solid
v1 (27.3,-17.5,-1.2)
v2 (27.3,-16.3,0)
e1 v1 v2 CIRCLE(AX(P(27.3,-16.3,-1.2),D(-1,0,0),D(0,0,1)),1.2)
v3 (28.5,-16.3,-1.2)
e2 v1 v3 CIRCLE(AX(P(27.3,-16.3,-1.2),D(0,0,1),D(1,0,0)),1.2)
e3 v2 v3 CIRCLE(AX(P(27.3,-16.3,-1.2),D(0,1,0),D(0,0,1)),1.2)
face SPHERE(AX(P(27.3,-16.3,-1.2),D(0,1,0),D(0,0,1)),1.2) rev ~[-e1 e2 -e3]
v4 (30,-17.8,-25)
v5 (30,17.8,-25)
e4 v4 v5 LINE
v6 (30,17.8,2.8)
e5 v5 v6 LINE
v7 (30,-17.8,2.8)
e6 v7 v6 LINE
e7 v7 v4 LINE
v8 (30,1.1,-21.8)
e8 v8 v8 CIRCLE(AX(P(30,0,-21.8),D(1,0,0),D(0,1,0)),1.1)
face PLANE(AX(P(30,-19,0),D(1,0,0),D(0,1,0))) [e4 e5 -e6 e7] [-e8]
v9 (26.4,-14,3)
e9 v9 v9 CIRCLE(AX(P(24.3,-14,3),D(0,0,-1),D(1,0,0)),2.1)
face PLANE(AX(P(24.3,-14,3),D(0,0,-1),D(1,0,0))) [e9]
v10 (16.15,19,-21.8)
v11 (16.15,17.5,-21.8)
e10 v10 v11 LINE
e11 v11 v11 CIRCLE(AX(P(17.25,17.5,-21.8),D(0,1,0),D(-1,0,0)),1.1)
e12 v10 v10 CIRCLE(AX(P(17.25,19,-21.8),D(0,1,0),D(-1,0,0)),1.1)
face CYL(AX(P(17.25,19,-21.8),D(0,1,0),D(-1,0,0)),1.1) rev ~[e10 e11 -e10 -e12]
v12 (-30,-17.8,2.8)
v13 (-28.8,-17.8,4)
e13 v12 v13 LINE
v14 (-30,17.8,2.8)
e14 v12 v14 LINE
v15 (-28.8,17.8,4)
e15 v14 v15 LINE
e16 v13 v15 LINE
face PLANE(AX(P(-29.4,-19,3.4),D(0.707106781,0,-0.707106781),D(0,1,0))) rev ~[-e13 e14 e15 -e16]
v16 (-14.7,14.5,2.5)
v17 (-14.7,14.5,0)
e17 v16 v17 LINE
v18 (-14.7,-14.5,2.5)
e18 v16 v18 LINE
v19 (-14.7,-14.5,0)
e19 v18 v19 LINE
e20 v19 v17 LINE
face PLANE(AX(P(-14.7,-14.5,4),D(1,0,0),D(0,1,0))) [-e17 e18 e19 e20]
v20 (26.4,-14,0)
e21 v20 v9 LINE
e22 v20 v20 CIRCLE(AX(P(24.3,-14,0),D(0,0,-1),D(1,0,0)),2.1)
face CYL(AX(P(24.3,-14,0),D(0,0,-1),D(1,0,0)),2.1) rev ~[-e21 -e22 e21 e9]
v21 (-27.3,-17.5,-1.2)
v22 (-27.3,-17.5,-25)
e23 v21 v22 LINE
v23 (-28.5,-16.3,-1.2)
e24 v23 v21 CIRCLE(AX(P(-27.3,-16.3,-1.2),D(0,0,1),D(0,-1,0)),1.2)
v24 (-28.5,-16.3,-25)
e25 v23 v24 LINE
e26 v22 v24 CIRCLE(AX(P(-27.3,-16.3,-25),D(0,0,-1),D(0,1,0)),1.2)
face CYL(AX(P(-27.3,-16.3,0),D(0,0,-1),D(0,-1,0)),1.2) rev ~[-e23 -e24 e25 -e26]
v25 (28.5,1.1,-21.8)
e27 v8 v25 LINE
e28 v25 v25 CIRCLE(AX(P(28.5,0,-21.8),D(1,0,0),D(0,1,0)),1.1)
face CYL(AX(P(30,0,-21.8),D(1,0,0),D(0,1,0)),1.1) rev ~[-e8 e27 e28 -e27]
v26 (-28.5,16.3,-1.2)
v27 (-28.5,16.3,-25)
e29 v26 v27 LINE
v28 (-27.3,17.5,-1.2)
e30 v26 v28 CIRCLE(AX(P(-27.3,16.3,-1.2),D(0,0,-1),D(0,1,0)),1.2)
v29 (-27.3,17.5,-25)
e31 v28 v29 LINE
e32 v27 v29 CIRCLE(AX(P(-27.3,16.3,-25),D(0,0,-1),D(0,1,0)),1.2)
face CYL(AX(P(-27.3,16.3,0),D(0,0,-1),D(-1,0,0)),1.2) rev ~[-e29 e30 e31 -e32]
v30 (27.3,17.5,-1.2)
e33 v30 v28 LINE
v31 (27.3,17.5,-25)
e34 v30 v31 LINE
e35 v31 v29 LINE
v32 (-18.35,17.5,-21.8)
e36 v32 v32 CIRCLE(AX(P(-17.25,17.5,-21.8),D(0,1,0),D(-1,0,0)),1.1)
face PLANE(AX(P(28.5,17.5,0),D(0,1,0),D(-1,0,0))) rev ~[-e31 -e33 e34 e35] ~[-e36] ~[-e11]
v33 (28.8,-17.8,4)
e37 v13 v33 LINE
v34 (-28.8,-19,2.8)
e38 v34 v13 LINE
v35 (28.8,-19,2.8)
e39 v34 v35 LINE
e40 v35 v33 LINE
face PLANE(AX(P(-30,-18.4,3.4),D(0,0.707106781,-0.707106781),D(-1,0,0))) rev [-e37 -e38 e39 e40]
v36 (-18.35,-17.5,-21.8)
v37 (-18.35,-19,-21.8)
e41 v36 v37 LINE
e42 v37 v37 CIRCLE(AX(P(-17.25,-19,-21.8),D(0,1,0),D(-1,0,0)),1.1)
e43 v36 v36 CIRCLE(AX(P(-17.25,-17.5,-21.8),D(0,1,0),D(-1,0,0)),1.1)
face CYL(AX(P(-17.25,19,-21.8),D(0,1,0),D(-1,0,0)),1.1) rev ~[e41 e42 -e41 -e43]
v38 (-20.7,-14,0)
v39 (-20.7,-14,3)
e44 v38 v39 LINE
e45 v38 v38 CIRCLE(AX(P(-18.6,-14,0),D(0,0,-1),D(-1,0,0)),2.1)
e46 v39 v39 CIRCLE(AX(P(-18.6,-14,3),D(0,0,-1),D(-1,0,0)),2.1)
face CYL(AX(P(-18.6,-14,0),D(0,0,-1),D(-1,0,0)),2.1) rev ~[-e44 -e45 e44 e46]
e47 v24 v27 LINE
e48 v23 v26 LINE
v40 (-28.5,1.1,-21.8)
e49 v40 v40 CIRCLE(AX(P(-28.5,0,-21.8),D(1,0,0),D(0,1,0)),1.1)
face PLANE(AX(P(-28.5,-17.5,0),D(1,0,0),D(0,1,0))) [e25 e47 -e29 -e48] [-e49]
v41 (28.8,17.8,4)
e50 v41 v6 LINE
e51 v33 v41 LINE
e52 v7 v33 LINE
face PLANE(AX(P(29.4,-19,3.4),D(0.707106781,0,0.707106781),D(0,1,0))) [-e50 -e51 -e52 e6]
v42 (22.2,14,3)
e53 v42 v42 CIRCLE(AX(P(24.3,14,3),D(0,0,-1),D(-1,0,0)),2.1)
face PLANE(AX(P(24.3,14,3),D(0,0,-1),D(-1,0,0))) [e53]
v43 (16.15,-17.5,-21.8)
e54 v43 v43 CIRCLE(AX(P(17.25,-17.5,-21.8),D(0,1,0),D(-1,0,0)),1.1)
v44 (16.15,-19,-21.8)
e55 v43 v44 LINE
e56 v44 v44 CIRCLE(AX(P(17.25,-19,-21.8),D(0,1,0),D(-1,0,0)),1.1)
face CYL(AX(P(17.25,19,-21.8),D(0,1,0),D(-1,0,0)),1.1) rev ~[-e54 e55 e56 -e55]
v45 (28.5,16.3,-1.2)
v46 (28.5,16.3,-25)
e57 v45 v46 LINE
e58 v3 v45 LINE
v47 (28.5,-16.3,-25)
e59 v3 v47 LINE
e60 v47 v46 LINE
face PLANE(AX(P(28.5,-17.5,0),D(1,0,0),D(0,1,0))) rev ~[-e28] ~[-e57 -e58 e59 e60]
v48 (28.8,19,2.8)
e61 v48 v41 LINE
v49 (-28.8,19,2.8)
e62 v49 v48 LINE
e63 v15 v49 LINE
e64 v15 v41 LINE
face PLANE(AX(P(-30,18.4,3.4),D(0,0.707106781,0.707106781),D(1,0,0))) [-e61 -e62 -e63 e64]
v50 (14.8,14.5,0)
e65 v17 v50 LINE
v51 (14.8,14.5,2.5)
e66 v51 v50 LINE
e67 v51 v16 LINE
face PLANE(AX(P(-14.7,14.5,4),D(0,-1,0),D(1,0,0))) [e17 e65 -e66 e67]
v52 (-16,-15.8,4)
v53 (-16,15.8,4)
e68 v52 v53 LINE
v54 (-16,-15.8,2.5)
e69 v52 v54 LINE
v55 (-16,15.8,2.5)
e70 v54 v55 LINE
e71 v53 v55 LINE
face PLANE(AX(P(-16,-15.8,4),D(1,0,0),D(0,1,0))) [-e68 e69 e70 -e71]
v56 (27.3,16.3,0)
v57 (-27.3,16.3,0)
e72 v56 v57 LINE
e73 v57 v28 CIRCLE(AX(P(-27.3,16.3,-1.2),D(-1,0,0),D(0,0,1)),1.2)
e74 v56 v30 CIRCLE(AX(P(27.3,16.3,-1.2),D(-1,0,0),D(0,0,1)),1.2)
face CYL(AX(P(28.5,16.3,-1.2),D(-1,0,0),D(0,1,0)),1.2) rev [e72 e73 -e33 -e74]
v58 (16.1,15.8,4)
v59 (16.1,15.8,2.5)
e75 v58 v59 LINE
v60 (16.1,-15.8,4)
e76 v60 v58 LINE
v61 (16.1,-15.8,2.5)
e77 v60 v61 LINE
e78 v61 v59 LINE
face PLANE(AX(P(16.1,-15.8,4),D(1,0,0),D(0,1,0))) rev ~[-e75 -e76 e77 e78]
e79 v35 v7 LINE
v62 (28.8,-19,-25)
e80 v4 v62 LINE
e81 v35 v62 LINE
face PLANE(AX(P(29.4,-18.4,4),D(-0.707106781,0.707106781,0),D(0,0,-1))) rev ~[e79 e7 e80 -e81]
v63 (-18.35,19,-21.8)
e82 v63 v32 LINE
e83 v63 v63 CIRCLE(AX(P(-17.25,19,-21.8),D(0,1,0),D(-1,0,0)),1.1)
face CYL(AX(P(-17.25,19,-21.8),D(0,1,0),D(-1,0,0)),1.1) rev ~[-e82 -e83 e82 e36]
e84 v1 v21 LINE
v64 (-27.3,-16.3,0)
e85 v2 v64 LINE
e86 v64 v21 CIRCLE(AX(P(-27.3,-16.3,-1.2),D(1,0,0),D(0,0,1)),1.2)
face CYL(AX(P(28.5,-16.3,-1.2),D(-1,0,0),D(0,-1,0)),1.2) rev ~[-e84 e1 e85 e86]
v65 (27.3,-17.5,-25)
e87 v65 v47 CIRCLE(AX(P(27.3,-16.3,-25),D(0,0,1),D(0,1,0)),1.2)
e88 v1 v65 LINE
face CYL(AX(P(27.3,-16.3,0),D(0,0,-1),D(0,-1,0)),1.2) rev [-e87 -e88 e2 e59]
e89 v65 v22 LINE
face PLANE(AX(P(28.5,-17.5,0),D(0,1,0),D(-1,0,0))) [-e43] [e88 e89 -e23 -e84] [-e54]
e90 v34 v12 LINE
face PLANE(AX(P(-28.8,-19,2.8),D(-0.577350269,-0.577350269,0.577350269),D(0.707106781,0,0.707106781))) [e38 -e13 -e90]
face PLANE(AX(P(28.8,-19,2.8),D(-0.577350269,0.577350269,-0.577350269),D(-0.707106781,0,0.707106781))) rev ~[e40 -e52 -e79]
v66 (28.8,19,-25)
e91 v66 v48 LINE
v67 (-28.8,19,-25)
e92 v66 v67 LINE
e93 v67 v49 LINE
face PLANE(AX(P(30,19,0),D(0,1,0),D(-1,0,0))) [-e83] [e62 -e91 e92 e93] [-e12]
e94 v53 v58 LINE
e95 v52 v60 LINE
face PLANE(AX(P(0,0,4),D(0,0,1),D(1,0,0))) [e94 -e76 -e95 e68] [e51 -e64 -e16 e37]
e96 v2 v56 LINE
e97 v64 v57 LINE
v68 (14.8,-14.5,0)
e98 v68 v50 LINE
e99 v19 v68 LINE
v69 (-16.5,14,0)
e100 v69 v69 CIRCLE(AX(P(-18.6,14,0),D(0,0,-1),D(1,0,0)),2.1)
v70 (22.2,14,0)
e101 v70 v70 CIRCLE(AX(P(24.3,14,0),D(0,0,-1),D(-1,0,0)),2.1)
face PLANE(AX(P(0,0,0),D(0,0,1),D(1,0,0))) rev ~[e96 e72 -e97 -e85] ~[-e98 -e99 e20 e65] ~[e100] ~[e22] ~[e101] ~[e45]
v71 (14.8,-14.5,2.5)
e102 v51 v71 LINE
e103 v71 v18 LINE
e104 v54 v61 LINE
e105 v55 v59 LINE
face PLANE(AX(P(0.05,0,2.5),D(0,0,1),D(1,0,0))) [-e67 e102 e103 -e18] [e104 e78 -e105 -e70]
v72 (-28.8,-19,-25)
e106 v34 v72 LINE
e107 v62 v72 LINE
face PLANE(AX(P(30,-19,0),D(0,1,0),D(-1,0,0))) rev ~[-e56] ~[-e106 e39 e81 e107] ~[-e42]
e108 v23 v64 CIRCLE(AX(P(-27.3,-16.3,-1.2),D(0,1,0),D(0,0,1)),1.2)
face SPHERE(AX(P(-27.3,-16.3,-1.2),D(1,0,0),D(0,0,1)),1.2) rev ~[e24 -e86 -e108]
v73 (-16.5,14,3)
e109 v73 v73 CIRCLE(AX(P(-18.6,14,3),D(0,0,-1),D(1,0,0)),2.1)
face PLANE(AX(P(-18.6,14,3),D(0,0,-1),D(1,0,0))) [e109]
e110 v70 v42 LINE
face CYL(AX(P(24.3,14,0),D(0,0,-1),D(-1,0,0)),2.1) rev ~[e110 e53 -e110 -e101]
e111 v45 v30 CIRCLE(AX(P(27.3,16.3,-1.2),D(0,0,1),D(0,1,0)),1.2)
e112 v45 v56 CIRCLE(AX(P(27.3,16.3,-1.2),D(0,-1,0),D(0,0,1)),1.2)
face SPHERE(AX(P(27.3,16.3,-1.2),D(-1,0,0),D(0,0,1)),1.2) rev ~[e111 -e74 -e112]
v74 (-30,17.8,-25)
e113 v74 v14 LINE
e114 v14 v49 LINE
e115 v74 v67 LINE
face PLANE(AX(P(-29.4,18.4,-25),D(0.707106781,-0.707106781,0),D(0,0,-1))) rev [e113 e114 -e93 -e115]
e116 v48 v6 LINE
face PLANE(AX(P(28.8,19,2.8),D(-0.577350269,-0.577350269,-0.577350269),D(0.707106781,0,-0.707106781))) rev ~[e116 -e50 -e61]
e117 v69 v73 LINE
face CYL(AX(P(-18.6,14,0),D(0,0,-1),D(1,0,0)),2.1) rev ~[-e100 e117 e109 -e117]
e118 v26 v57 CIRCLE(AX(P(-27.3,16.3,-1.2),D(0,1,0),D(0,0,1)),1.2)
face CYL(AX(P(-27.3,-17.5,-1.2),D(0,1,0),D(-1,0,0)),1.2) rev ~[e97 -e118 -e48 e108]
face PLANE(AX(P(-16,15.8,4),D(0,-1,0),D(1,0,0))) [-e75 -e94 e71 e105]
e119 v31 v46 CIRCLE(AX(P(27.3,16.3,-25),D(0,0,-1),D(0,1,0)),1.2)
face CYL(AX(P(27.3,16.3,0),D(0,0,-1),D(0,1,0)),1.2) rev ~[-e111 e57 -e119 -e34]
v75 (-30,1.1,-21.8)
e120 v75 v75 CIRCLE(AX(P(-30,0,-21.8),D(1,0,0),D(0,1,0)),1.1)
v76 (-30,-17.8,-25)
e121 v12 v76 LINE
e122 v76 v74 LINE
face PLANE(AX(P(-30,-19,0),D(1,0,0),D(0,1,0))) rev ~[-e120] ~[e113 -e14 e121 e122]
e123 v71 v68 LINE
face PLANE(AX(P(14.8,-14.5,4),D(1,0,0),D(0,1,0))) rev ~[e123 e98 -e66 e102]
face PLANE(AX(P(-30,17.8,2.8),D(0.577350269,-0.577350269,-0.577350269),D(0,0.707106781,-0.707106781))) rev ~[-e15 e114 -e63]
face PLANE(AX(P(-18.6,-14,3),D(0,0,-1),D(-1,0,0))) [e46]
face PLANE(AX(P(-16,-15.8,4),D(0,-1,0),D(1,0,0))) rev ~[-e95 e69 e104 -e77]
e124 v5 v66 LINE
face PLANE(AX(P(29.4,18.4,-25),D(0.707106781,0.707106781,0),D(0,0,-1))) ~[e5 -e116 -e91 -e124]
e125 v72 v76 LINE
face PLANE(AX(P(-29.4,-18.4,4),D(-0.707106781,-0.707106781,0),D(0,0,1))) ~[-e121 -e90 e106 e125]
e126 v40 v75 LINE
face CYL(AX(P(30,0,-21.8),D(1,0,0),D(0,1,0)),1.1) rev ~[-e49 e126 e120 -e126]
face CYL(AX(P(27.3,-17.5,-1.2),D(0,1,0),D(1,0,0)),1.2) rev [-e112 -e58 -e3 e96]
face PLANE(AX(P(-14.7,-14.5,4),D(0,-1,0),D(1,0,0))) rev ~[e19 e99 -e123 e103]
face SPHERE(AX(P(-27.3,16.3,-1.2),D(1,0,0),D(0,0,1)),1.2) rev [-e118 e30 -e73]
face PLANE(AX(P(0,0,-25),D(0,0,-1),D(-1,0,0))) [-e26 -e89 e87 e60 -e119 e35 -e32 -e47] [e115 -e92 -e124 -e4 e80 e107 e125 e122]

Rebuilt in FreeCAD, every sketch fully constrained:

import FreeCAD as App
import Part
import Sketcher

V = App.Vector
Q = App.Units.Quantity


def edges_at(feature, points):
    """Names of the edges that pass closest to the given points."""
    edges = feature.Shape.Edges
    near = lambda p: min(range(len(edges)), key=lambda i: edges[i].distToShape(Part.Vertex(*p))[0])
    return sorted({f"Edge{near(p) + 1}" for p in points})


def add_polygon(sketch, points):
    """Adds a closed chain of lines whose ends are joined by coincident constraints."""
    first, n = sketch.GeometryCount, len(points)
    for a, b in zip(points, points[1:] + points[:1]):
        sketch.addGeometry(Part.LineSegment(App.Vector(*a, 0), App.Vector(*b, 0)), False)
    for i in range(n):
        sketch.addConstraint(Sketcher.Constraint("Coincident", first + i, 2, first + (i + 1) % n, 1))

doc = App.newDocument("Part")
body = doc.addObject("PartDesign::Body", "Body")

# Sketch on XY plane
sketch1 = doc.addObject("Sketcher::SketchObject", "Sketch")
body.addObject(sketch1)
sketch1.AttachmentSupport = (doc.XY_Plane, [""])
sketch1.MapMode = "FlatFace"
add_polygon(sketch1, [(-30, 19), (-30, -19), (30, -19), (30, 19)])  # lines 0-3
sketch1.addConstraint(Sketcher.Constraint("Vertical", 0))
sketch1.addConstraint(Sketcher.Constraint("Horizontal", 1))
sketch1.addConstraint(Sketcher.Constraint("Vertical", 2))
sketch1.addConstraint(Sketcher.Constraint("Horizontal", 3))
sketch1.addConstraint(Sketcher.Constraint("Symmetric", 0, 2, 2, 2, -1, 1))
sketch1.addConstraint(Sketcher.Constraint("DistanceX", 1, 1, 1, 2, Q("60 mm")))
sketch1.addConstraint(Sketcher.Constraint("DistanceY", 0, 2, 0, 1, Q("38 mm")))
pad1 = doc.addObject("PartDesign::Pad", "Pad")
body.addObject(pad1)
pad1.Profile = sketch1
pad1.Length = 4

# Sketch on XY plane
sketch2 = doc.addObject("Sketcher::SketchObject", "Sketch001")
body.addObject(sketch2)
sketch2.AttachmentSupport = (doc.XY_Plane, [""])
sketch2.MapMode = "FlatFace"
sketch2.AttachmentOffset = App.Placement(V(0, 0, 4), App.Rotation())
add_polygon(sketch2, [(-15, 14), (-15, -14), (15, -14), (15, 14)])  # lines 0-3
sketch2.addConstraint(Sketcher.Constraint("Vertical", 0))
sketch2.addConstraint(Sketcher.Constraint("Horizontal", 1))
sketch2.addConstraint(Sketcher.Constraint("Vertical", 2))
sketch2.addConstraint(Sketcher.Constraint("Horizontal", 3))
sketch2.addConstraint(Sketcher.Constraint("DistanceY", 0, 2, 0, 1, Q("29 mm")))
sketch2.addConstraint(Sketcher.Constraint("DistanceX", 1, 1, 1, 2, Q("29.5 mm")))
sketch2.addConstraint(Sketcher.Constraint("DistanceX", 0, 2, -1, 1, Q("14.7 mm")))
sketch2.addConstraint(Sketcher.Constraint("DistanceY", 0, 2, -1, 1, Q("14.5 mm")))
pocket1 = doc.addObject("PartDesign::Pocket", "Pocket")
body.addObject(pocket1)
pocket1.Profile = sketch2
pocket1.Length = 4

# Sketch on XY plane
sketch3 = doc.addObject("Sketcher::SketchObject", "Sketch002")
body.addObject(sketch3)
sketch3.AttachmentSupport = (doc.XY_Plane, [""])
sketch3.MapMode = "FlatFace"
sketch3.addGeometry(Part.Circle(V(24.3, 14, 0), V(0, 0, 1), 2.1), False)
sketch3.addGeometry(Part.Circle(V(24.3, -14, 0), V(0, 0, 1), 2.1), False)
sketch3.addGeometry(Part.Circle(V(-18.6, -14, 0), V(0, 0, 1), 2.1), False)
sketch3.addGeometry(Part.Circle(V(-18.6, 14, 0), V(0, 0, 1), 2.1), False)
sketch3.addConstraint(Sketcher.Constraint("Equal", 0, 1))
sketch3.addConstraint(Sketcher.Constraint("Equal", 1, 2))
sketch3.addConstraint(Sketcher.Constraint("Equal", 2, 3))
sketch3.addConstraint(Sketcher.Constraint("Symmetric", 0, 3, 1, 3, -1))
sketch3.addConstraint(Sketcher.Constraint("Symmetric", 2, 3, 3, 3, -1))
sketch3.addConstraint(Sketcher.Constraint("Horizontal", 1, 3, 2, 3))
sketch3.addConstraint(Sketcher.Constraint("Diameter", 0, Q("4.2 mm")))
sketch3.addConstraint(Sketcher.Constraint("DistanceY", -1, 1, 0, 3, Q("14 mm")))
sketch3.addConstraint(Sketcher.Constraint("DistanceX", -1, 1, 0, 3, Q("24.3 mm")))
sketch3.addConstraint(Sketcher.Constraint("DistanceX", 2, 3, -1, 1, Q("18.6 mm")))
pocket2 = doc.addObject("PartDesign::Pocket", "Pocket001")
body.addObject(pocket2)
pocket2.Profile = sketch3
pocket2.Length = 3
pocket2.Reversed = True

# Sketch on XY plane
sketch4 = doc.addObject("Sketcher::SketchObject", "Sketch003")
body.addObject(sketch4)
sketch4.AttachmentSupport = (doc.XY_Plane, [""])
sketch4.MapMode = "FlatFace"
add_polygon(sketch4, [(30, 19), (30, -19), (-30, -19), (-30, 19)])  # lines 0-3
add_polygon(sketch4, [(-28, -18), (28, -18), (28, 18), (-28, 18)])  # lines 4-7
sketch4.addConstraint(Sketcher.Constraint("Vertical", 0))
sketch4.addConstraint(Sketcher.Constraint("Horizontal", 1))
sketch4.addConstraint(Sketcher.Constraint("Vertical", 2))
sketch4.addConstraint(Sketcher.Constraint("Horizontal", 3))
sketch4.addConstraint(Sketcher.Constraint("Horizontal", 4))
sketch4.addConstraint(Sketcher.Constraint("Vertical", 5))
sketch4.addConstraint(Sketcher.Constraint("Horizontal", 6))
sketch4.addConstraint(Sketcher.Constraint("Vertical", 7))
sketch4.addConstraint(Sketcher.Constraint("Symmetric", 0, 2, 2, 2, -1, 1))
sketch4.addConstraint(Sketcher.Constraint("Symmetric", 4, 2, 6, 2, -1, 1))
sketch4.addConstraint(Sketcher.Constraint("DistanceX", 1, 2, 1, 1, Q("60 mm")))
sketch4.addConstraint(Sketcher.Constraint("DistanceX", 4, 1, 4, 2, Q("57 mm")))
sketch4.addConstraint(Sketcher.Constraint("DistanceY", 0, 2, 0, 1, Q("38 mm")))
sketch4.addConstraint(Sketcher.Constraint("DistanceY", 5, 1, 5, 2, Q("35 mm")))
pad2 = doc.addObject("PartDesign::Pad", "Pad001")
body.addObject(pad2)
pad2.Profile = sketch4
pad2.Length = 25
pad2.Reversed = True
doc.recompute()

chamfer = doc.addObject("PartDesign::Chamfer", "Chamfer")
body.addObject(chamfer)
chamfer.Base = (pad2, edges_at(pad2, [
    (30, 0, 4),
    (0, 19, 4),
    (-30, 0, 4),
    (-30, 19, -10.5),
    (30, 19, -10.5),
    (30, -19, -10.5),
    (-30, -19, -10.5),
    (0, -19, 4),
]))
chamfer.Size = 1.2
doc.recompute()

fillet = doc.addObject("PartDesign::Fillet", "Fillet")
body.addObject(fillet)
fillet.Base = (chamfer, edges_at(chamfer, [
    (0, 17.5, 0),
    (28.5, 0, 0),
    (0, -17.5, 0),
    (-28.5, 0, 0),
    (28.5, 17.5, -12.5),
    (28.5, -17.5, -12.5),
    (-28.5, -17.5, -12.5),
    (-28.5, 17.5, -12.5),
]))
fillet.Radius = 1.2

# Sketch on YZ plane
sketch5 = doc.addObject("Sketcher::SketchObject", "Sketch004")
body.addObject(sketch5)
sketch5.AttachmentSupport = (doc.YZ_Plane, [""])
sketch5.MapMode = "FlatFace"
sketch5.AttachmentOffset = App.Placement(V(0, 0, 30), App.Rotation())
sketch5.addGeometry(Part.Circle(V(0, -21.8, 0), V(0, 0, 1), 1.1), False)
sketch5.addConstraint(Sketcher.Constraint("PointOnObject", 0, 3, -2))
sketch5.addConstraint(Sketcher.Constraint("Diameter", 0, Q("2.2 mm")))
sketch5.addConstraint(Sketcher.Constraint("DistanceY", 0, 3, -1, 1, Q("21.8 mm")))
pocket3 = doc.addObject("PartDesign::Pocket", "Pocket002")
body.addObject(pocket3)
pocket3.Profile = sketch5
pocket3.Type = "ThroughAll"

# Sketch on XZ plane
sketch6 = doc.addObject("Sketcher::SketchObject", "Sketch005")
body.addObject(sketch6)
sketch6.AttachmentSupport = (doc.XZ_Plane, [""])
sketch6.MapMode = "FlatFace"
sketch6.AttachmentOffset = App.Placement(V(0, 0, -19), App.Rotation())
sketch6.addGeometry(Part.Circle(V(-17.2, -21.8, 0), V(0, 0, 1), 1.1), False)
sketch6.addGeometry(Part.Circle(V(17.2, -21.8, 0), V(0, 0, 1), 1.1), False)
sketch6.addConstraint(Sketcher.Constraint("Equal", 0, 1))
sketch6.addConstraint(Sketcher.Constraint("Symmetric", 0, 3, 1, 3, -2))
sketch6.addConstraint(Sketcher.Constraint("Diameter", 0, Q("2.2 mm")))
sketch6.addConstraint(Sketcher.Constraint("DistanceY", 0, 3, -1, 1, Q("21.8 mm")))
sketch6.addConstraint(Sketcher.Constraint("DistanceX", 0, 3, 1, 3, Q("34.5 mm")))
pocket4 = doc.addObject("PartDesign::Pocket", "Pocket003")
body.addObject(pocket4)
pocket4.Profile = sketch6
pocket4.Type = "ThroughAll"
pocket4.Reversed = True

# Sketch on XY plane
sketch7 = doc.addObject("Sketcher::SketchObject", "Sketch006")
body.addObject(sketch7)
sketch7.AttachmentSupport = (doc.XY_Plane, [""])
sketch7.MapMode = "FlatFace"
sketch7.AttachmentOffset = App.Placement(V(0, 0, 4), App.Rotation())
add_polygon(sketch7, [(-16, 16), (-16, -16), (16, -16), (16, 16)])  # lines 0-3
sketch7.addConstraint(Sketcher.Constraint("Vertical", 0))
sketch7.addConstraint(Sketcher.Constraint("Horizontal", 1))
sketch7.addConstraint(Sketcher.Constraint("Vertical", 2))
sketch7.addConstraint(Sketcher.Constraint("Horizontal", 3))
sketch7.addConstraint(Sketcher.Constraint("DistanceX", 1, 1, 1, 2, Q("32.1 mm")))
sketch7.addConstraint(Sketcher.Constraint("DistanceY", 0, 2, 0, 1, Q("31.6 mm")))
sketch7.addConstraint(Sketcher.Constraint("DistanceX", 0, 2, -1, 1, Q("16 mm")))
sketch7.addConstraint(Sketcher.Constraint("DistanceY", 0, 2, -1, 1, Q("15.8 mm")))
pocket5 = doc.addObject("PartDesign::Pocket", "Pocket004")
body.addObject(pocket5)
pocket5.Profile = sketch7
pocket5.Length = 1.5

doc.recompute()
